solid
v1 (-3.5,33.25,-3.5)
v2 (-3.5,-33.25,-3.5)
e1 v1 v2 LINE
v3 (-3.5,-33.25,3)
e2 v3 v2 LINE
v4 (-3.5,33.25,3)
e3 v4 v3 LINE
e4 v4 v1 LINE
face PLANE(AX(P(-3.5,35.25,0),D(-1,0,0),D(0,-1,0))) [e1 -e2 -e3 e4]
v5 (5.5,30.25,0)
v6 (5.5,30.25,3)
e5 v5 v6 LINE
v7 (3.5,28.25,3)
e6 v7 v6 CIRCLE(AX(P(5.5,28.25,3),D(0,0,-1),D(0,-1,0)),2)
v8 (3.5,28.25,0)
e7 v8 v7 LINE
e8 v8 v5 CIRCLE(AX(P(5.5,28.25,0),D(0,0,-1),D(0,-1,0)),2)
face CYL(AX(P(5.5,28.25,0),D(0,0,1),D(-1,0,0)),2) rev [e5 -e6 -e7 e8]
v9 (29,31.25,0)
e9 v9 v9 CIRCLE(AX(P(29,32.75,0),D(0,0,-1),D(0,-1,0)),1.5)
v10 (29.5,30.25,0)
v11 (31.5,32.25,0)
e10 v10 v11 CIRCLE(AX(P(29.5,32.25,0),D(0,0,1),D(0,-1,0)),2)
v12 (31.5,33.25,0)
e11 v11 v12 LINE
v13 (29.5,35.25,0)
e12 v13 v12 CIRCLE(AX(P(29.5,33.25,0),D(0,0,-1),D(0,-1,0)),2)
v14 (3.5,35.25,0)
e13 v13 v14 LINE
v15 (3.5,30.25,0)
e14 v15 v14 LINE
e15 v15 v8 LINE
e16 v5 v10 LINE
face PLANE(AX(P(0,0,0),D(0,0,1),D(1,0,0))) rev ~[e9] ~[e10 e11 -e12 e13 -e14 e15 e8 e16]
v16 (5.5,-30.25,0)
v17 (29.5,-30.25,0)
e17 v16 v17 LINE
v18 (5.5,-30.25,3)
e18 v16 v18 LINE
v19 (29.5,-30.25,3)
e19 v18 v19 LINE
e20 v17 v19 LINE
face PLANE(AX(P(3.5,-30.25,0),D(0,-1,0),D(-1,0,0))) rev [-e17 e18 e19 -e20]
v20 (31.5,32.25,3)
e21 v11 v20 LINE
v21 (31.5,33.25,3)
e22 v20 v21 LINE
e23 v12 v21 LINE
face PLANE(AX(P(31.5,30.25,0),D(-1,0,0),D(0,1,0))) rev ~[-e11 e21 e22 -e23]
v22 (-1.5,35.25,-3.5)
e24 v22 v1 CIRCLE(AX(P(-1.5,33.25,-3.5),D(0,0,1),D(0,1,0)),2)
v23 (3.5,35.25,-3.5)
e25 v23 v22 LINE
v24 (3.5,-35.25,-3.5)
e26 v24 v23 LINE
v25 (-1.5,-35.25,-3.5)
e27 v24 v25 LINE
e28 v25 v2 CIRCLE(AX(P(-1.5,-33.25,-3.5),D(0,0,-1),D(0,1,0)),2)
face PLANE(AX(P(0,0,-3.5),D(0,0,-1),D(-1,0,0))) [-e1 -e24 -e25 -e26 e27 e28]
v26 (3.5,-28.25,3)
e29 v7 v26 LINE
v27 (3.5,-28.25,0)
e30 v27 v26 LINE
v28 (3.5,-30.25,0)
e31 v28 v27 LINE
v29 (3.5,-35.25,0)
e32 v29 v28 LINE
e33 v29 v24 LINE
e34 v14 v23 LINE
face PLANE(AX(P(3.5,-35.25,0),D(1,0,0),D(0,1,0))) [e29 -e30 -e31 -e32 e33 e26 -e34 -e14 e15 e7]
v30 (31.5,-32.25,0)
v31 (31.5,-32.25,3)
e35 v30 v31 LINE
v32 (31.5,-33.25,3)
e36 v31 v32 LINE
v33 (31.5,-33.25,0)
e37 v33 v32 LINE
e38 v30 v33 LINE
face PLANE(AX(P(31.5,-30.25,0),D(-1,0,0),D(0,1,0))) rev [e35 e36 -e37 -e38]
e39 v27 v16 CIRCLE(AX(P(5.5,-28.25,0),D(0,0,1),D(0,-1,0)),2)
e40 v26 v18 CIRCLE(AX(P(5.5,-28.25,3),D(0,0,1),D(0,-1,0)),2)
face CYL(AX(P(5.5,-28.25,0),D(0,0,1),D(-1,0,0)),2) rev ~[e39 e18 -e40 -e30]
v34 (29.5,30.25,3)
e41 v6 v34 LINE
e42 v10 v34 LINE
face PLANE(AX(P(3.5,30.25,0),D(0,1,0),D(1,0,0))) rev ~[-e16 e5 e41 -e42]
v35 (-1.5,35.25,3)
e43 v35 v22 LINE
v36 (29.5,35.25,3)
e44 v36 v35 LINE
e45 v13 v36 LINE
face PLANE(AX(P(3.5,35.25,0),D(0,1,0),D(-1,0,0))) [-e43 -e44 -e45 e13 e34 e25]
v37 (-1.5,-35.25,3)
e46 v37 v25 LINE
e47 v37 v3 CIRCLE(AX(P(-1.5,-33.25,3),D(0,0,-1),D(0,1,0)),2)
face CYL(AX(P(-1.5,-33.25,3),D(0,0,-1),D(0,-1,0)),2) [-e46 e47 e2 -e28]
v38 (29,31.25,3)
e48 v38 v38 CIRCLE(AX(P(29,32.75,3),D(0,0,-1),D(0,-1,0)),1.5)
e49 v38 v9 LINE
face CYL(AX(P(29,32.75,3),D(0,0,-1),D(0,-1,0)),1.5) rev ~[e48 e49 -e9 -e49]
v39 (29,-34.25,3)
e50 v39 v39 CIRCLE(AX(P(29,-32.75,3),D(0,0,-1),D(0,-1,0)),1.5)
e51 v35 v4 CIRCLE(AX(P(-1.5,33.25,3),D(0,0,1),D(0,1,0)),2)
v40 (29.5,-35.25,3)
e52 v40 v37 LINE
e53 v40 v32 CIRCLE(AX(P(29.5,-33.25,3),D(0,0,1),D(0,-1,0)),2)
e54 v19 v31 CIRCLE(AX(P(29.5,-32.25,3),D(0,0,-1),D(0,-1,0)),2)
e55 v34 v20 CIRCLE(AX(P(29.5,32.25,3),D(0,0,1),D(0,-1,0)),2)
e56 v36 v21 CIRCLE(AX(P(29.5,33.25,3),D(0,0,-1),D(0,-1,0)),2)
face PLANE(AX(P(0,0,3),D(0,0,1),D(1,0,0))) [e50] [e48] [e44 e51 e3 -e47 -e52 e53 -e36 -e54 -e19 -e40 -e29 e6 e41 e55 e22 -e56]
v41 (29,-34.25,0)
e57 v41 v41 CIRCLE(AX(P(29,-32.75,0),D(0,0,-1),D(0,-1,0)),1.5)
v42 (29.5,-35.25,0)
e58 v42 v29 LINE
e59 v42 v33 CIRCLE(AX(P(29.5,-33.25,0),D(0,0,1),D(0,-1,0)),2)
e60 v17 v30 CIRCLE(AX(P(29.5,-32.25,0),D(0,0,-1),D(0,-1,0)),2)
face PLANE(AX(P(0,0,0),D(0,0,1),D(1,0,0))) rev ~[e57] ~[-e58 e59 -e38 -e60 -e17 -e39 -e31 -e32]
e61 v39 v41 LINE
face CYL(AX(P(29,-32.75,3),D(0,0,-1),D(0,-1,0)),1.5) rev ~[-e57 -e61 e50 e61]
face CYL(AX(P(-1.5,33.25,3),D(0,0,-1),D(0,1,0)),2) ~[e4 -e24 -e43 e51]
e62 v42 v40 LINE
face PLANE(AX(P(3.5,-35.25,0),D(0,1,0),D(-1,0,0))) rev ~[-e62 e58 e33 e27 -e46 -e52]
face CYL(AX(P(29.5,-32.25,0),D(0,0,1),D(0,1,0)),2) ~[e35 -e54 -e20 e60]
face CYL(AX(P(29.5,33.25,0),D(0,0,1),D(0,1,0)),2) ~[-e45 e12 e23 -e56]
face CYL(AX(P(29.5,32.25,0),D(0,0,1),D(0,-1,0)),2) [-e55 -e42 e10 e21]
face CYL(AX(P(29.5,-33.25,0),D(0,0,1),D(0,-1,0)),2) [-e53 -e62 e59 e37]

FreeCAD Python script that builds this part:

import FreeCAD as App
import Part
import Sketcher


def edges_at(feature, points):
    """Names of the edges that pass closest to the given points."""
    edges = feature.Shape.Edges
    near = lambda p: min(range(len(edges)), key=lambda i: edges[i].distToShape(Part.Vertex(*p))[0])
    return sorted({f"Edge{near(p) + 1}" for p in points})


def add_polygon(sketch, points):
    """Adds a closed chain of lines whose ends are joined by coincident constraints."""
    first, n = sketch.GeometryCount, len(points)
    for a, b in zip(points, points[1:] + points[:1]):
        sketch.addGeometry(Part.LineSegment(App.Vector(*a, 0), App.Vector(*b, 0)), False)
    for i in range(n):
        sketch.addConstraint(Sketcher.Constraint("Coincident", first + i, 2, first + (i + 1) % n, 1))

doc = App.newDocument("Part")
body = doc.addObject("PartDesign::Body", "Body")

# Sketch on XY plane
sketch1 = body.newObject("Sketcher::SketchObject", "Sketch")
sketch1.AttachmentSupport = (doc.getObject("XY_Plane"), [""])
sketch1.MapMode = "FlatFace"
add_polygon(sketch1, [(3.5, 30.25), (31.5, 30.25), (31.5, 35.25), (-3.5, 35.25), (-3.5, 0), (3.5, 0)])  # lines 0-5
sketch1.addConstraint([
    Sketcher.Constraint("Horizontal", 0),
    Sketcher.Constraint("Vertical", 1),
    Sketcher.Constraint("Horizontal", 2),
    Sketcher.Constraint("Vertical", 3),
    Sketcher.Constraint("Horizontal", 4),
    Sketcher.Constraint("Vertical", 5),
    Sketcher.Constraint("Symmetric", 3, 2, 4, 2, -1, 1),
    Sketcher.Constraint("DistanceX", 2, 2, 2, 1, 35.0),
    Sketcher.Constraint("DistanceX", 4, 1, 4, 2, 7.0),
    Sketcher.Constraint("DistanceY", 1, 1, 1, 2, 5.0),
    Sketcher.Constraint("DistanceY", 3, 2, 3, 1, 35.25),
])
pad1 = body.newObject("PartDesign::Pad", "Pad")
pad1.Profile = sketch1
pad1.Length = 3
doc.recompute()

mirrored = body.newObject("PartDesign::Mirrored", "Mirrored")
mirrored.Originals = [pad1]
mirrored.MirrorPlane = (doc.getObject("XZ_Plane"), [""])
body.Tip = mirrored

# Sketch on XY plane
sketch2 = body.newObject("Sketcher::SketchObject", "Sketch001")
sketch2.AttachmentSupport = (doc.getObject("XY_Plane"), [""])
sketch2.MapMode = "FlatFace"
add_polygon(sketch2, [(3.5, 35.25), (3.5, -35.25), (-3.5, -35.25), (-3.5, 35.25)])  # lines 0-3
sketch2.addConstraint([
    Sketcher.Constraint("Vertical", 0),
    Sketcher.Constraint("Horizontal", 1),
    Sketcher.Constraint("Vertical", 2),
    Sketcher.Constraint("Horizontal", 3),
    Sketcher.Constraint("Symmetric", 0, 2, 2, 2, -1, 1),
    Sketcher.Constraint("DistanceX", 1, 2, 1, 1, 7.0),
    Sketcher.Constraint("DistanceY", 0, 2, 0, 1, 70.5),
])
pad2 = body.newObject("PartDesign::Pad", "Pad001")
pad2.Profile = sketch2
pad2.Length = 3.5
pad2.Reversed = True

# Sketch on XY plane
sketch3 = body.newObject("Sketcher::SketchObject", "Sketch002")
sketch3.AttachmentSupport = (doc.getObject("XY_Plane"), [""])
sketch3.MapMode = "FlatFace"
sketch3.AttachmentOffset = App.Placement(App.Vector(0, 0, 3), App.Rotation())
sketch3.addGeometry([
    Part.Circle(App.Vector(29, -32.75, 0), App.Vector(0, 0, 1), 1.5),
    Part.Circle(App.Vector(29, 32.75, 0), App.Vector(0, 0, 1), 1.5),
], False)
sketch3.addConstraint([
    Sketcher.Constraint("Equal", 0, 1),
    Sketcher.Constraint("Symmetric", 0, 3, 1, 3, -1),
    Sketcher.Constraint("Diameter", 0, 3.0),
    Sketcher.Constraint("DistanceX", -1, 1, 0, 3, 29.0),
    Sketcher.Constraint("DistanceY", 0, 3, 1, 3, 65.5),
])
doc.recompute()
hole = body.newObject("PartDesign::Hole", "Hole")
hole.Profile = sketch3
hole.ThreadType = "None"
hole.Diameter = 3
hole.DepthType = "ThroughAll"
doc.recompute()

fillet = body.newObject("PartDesign::Fillet", "Fillet")
fillet.Base = (hole, edges_at(hole, [
    (31.5, -35.25, 1.5),
    (31.5, -30.25, 1.5),
    (31.5, 30.25, 1.5),
    (31.5, 35.25, 1.5),
    (-3.5, -35.25, -0.25),
    (-3.5, 35.25, -0.25),
    (3.5, -30.25, 1.5),
    (3.5, 30.25, 1.5),
]))
fillet.Radius = 2

doc.recompute()
